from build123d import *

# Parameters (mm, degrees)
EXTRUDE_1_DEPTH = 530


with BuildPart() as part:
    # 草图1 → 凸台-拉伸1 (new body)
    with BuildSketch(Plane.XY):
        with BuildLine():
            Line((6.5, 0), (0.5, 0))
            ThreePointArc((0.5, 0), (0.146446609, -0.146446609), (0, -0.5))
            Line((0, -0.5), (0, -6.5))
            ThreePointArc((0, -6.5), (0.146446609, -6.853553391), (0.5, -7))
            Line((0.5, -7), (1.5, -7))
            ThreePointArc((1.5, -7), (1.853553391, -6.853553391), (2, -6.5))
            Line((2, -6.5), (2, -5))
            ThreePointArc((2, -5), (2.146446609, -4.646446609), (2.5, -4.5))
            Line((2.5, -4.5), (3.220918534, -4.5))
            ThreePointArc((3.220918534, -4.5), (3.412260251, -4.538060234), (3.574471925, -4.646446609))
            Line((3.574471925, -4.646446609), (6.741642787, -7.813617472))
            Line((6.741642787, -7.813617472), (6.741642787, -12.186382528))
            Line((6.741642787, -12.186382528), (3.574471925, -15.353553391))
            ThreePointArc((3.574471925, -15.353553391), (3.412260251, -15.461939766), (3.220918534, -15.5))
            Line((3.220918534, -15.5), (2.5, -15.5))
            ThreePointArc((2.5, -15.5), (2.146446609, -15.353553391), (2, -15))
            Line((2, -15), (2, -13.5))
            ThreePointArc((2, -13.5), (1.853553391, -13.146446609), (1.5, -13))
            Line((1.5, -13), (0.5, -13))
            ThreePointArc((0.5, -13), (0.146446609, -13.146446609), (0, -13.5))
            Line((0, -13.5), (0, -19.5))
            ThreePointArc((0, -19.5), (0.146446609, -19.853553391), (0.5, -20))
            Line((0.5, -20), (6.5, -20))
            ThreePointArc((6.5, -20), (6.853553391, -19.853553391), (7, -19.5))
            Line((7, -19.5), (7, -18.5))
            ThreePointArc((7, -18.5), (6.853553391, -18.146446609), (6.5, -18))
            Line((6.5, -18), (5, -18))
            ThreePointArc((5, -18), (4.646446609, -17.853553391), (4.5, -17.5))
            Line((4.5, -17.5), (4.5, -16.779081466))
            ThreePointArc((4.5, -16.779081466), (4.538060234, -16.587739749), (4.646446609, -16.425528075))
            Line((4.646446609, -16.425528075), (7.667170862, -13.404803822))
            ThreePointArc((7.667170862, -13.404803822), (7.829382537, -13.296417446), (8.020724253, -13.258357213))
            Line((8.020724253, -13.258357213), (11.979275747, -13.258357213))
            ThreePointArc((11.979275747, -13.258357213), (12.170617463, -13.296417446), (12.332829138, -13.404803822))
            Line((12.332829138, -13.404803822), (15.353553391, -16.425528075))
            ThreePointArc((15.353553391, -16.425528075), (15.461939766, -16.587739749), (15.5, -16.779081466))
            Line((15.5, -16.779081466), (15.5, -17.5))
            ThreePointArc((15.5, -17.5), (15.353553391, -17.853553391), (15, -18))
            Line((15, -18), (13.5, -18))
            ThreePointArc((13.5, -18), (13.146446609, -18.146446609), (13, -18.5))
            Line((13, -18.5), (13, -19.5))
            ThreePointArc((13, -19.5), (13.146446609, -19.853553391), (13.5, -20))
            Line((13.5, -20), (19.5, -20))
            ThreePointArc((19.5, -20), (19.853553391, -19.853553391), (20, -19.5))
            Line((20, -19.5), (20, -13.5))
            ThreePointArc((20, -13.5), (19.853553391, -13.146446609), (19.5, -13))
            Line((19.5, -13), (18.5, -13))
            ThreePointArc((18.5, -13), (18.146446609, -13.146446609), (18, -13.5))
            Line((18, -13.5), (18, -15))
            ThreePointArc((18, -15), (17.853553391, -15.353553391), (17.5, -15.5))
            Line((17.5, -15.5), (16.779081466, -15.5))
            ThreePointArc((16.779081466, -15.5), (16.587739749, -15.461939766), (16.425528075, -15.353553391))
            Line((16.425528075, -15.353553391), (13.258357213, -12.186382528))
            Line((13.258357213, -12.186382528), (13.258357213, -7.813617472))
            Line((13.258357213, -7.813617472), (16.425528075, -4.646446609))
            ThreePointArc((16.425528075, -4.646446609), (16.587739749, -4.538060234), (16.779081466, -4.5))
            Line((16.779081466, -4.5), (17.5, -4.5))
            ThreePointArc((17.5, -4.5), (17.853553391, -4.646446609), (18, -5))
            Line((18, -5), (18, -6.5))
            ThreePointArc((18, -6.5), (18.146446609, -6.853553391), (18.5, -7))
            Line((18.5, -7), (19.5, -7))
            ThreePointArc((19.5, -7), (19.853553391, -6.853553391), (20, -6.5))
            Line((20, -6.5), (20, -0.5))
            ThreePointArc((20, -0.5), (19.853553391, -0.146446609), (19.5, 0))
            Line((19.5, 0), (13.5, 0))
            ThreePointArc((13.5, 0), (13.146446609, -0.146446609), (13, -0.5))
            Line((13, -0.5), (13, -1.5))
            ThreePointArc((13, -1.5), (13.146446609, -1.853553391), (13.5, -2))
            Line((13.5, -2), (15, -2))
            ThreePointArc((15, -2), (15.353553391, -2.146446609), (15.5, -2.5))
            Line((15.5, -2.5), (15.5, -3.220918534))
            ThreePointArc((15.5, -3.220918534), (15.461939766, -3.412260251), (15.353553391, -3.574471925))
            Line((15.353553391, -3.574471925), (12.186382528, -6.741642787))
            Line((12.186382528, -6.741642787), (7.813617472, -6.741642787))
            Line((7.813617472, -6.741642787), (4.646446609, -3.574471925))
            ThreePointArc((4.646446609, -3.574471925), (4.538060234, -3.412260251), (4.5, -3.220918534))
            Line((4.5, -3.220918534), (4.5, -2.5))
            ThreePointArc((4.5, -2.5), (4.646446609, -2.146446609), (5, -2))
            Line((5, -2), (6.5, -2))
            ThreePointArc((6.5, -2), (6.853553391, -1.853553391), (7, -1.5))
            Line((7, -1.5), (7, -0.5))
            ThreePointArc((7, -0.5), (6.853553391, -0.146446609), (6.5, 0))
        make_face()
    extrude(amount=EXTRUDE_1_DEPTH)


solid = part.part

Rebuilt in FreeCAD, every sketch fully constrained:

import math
import FreeCAD as App
import Part
import Sketcher

doc = App.newDocument("Part")
params = doc.addObject("Spreadsheet::Sheet", "Params")
for row, (alias, value) in enumerate([
    ("sketch1_radius", "0.5 mm"),
    ("sketch1_width", "6 mm"),
    ("sketch1_width2", "1 mm"),
    ("sketch1_width3", "1.5 mm"),
    ("pad1_length", "530 mm"),
], start=1):
    params.set(f"A{row}", alias)
    params.set(f"B{row}", "=" + value)
    params.setAlias(f"B{row}", alias)

body = doc.addObject("PartDesign::Body", "Body")

sketch1 = doc.addObject("Sketcher::SketchObject", "Sketch")
body.addObject(sketch1)
sketch1.AttachmentSupport = (doc.XY_Plane, [""])
sketch1.MapMode = "FlatFace"
sketch1.addGeometry(Part.LineSegment(App.Vector(6.5, 0, 0), App.Vector(0.5, 0, 0)), False)
sketch1.addGeometry(Part.ArcOfCircle(Part.Circle(App.Vector(0.5, -0.5, 0), App.Vector(0, 0, 1), 0.5), math.radians(90), math.radians(180)), False)
sketch1.addGeometry(Part.LineSegment(App.Vector(0, -0.5, 0), App.Vector(0, -6.5, 0)), False)
sketch1.addGeometry(Part.ArcOfCircle(Part.Circle(App.Vector(0.5, -6.5, 0), App.Vector(0, 0, 1), 0.5), math.radians(180), math.radians(270)), False)
sketch1.addGeometry(Part.LineSegment(App.Vector(0.5, -7, 0), App.Vector(1.5, -7, 0)), False)
sketch1.addGeometry(Part.ArcOfCircle(Part.Circle(App.Vector(1.5, -6.5, 0), App.Vector(0, 0, 1), 0.5), math.radians(-90), math.radians(0)), False)
sketch1.addGeometry(Part.LineSegment(App.Vector(2, -6.5, 0), App.Vector(2, -5, 0)), False)
sketch1.addGeometry(Part.ArcOfCircle(Part.Circle(App.Vector(2.5, -5, 0), App.Vector(0, 0, 1), 0.5), math.radians(90), math.radians(180)), False)
sketch1.addGeometry(Part.LineSegment(App.Vector(2.5, -4.5, 0), App.Vector(3.22, -4.5, 0)), False)
sketch1.addGeometry(Part.ArcOfCircle(Part.Circle(App.Vector(3.22, -5, 0), App.Vector(0, 0, 1), 0.5), math.radians(45), math.radians(90)), False)
sketch1.addGeometry(Part.LineSegment(App.Vector(3.57, -4.65, 0), App.Vector(6.74, -7.81, 0)), False)
sketch1.addGeometry(Part.LineSegment(App.Vector(6.74, -7.81, 0), App.Vector(6.74, -12.19, 0)), False)
sketch1.addGeometry(Part.LineSegment(App.Vector(6.74, -12.19, 0), App.Vector(3.57, -15.35, 0)), False)
sketch1.addGeometry(Part.ArcOfCircle(Part.Circle(App.Vector(3.22, -15, 0), App.Vector(0, 0, 1), 0.5), math.radians(-90), math.radians(-45)), False)
sketch1.addGeometry(Part.LineSegment(App.Vector(3.22, -15.5, 0), App.Vector(2.5, -15.5, 0)), False)
sketch1.addGeometry(Part.ArcOfCircle(Part.Circle(App.Vector(2.5, -15, 0), App.Vector(0, 0, 1), 0.5), math.radians(180), math.radians(270)), False)
sketch1.addGeometry(Part.LineSegment(App.Vector(2, -15, 0), App.Vector(2, -13.5, 0)), False)
sketch1.addGeometry(Part.ArcOfCircle(Part.Circle(App.Vector(1.5, -13.5, 0), App.Vector(0, 0, 1), 0.5), math.radians(0), math.radians(90)), False)
sketch1.addGeometry(Part.LineSegment(App.Vector(1.5, -13, 0), App.Vector(0.5, -13, 0)), False)
sketch1.addGeometry(Part.ArcOfCircle(Part.Circle(App.Vector(0.5, -13.5, 0), App.Vector(0, 0, 1), 0.5), math.radians(90), math.radians(180)), False)
sketch1.addGeometry(Part.LineSegment(App.Vector(0, -13.5, 0), App.Vector(0, -19.5, 0)), False)
sketch1.addGeometry(Part.ArcOfCircle(Part.Circle(App.Vector(0.5, -19.5, 0), App.Vector(0, 0, 1), 0.5), math.radians(180), math.radians(270)), False)
sketch1.addGeometry(Part.LineSegment(App.Vector(0.5, -20, 0), App.Vector(6.5, -20, 0)), False)
sketch1.addGeometry(Part.ArcOfCircle(Part.Circle(App.Vector(6.5, -19.5, 0), App.Vector(0, 0, 1), 0.5), math.radians(-90), math.radians(0)), False)
sketch1.addGeometry(Part.LineSegment(App.Vector(7, -19.5, 0), App.Vector(7, -18.5, 0)), False)
sketch1.addGeometry(Part.ArcOfCircle(Part.Circle(App.Vector(6.5, -18.5, 0), App.Vector(0, 0, 1), 0.5), math.radians(0), math.radians(90)), False)
sketch1.addGeometry(Part.LineSegment(App.Vector(6.5, -18, 0), App.Vector(5, -18, 0)), False)
sketch1.addGeometry(Part.ArcOfCircle(Part.Circle(App.Vector(5, -17.5, 0), App.Vector(0, 0, 1), 0.5), math.radians(180), math.radians(270)), False)
sketch1.addGeometry(Part.LineSegment(App.Vector(4.5, -17.5, 0), App.Vector(4.5, -16.78, 0)), False)
sketch1.addGeometry(Part.ArcOfCircle(Part.Circle(App.Vector(5, -16.78, 0), App.Vector(0, 0, 1), 0.5), math.radians(135), math.radians(180)), False)
sketch1.addGeometry(Part.LineSegment(App.Vector(4.65, -16.43, 0), App.Vector(7.67, -13.4, 0)), False)
sketch1.addGeometry(Part.ArcOfCircle(Part.Circle(App.Vector(8.02, -13.76, 0), App.Vector(0, 0, 1), 0.5), math.radians(90), math.radians(135)), False)
sketch1.addGeometry(Part.LineSegment(App.Vector(8.02, -13.26, 0), App.Vector(11.98, -13.26, 0)), False)
sketch1.addGeometry(Part.ArcOfCircle(Part.Circle(App.Vector(11.98, -13.76, 0), App.Vector(0, 0, 1), 0.5), math.radians(45), math.radians(90)), False)
sketch1.addGeometry(Part.LineSegment(App.Vector(12.33, -13.4, 0), App.Vector(15.35, -16.43, 0)), False)
sketch1.addGeometry(Part.ArcOfCircle(Part.Circle(App.Vector(15, -16.78, 0), App.Vector(0, 0, 1), 0.5), math.radians(0), math.radians(45)), False)
sketch1.addGeometry(Part.LineSegment(App.Vector(15.5, -16.78, 0), App.Vector(15.5, -17.5, 0)), False)
sketch1.addGeometry(Part.ArcOfCircle(Part.Circle(App.Vector(15, -17.5, 0), App.Vector(0, 0, 1), 0.5), math.radians(-90), math.radians(0)), False)
sketch1.addGeometry(Part.LineSegment(App.Vector(15, -18, 0), App.Vector(13.5, -18, 0)), False)
sketch1.addGeometry(Part.ArcOfCircle(Part.Circle(App.Vector(13.5, -18.5, 0), App.Vector(0, 0, 1), 0.5), math.radians(90), math.radians(180)), False)
sketch1.addGeometry(Part.LineSegment(App.Vector(13, -18.5, 0), App.Vector(13, -19.5, 0)), False)
sketch1.addGeometry(Part.ArcOfCircle(Part.Circle(App.Vector(13.5, -19.5, 0), App.Vector(0, 0, 1), 0.5), math.radians(180), math.radians(270)), False)
sketch1.addGeometry(Part.LineSegment(App.Vector(13.5, -20, 0), App.Vector(19.5, -20, 0)), False)
sketch1.addGeometry(Part.ArcOfCircle(Part.Circle(App.Vector(19.5, -19.5, 0), App.Vector(0, 0, 1), 0.5), math.radians(-90), math.radians(0)), False)
sketch1.addGeometry(Part.LineSegment(App.Vector(20, -19.5, 0), App.Vector(20, -13.5, 0)), False)
sketch1.addGeometry(Part.ArcOfCircle(Part.Circle(App.Vector(19.5, -13.5, 0), App.Vector(0, 0, 1), 0.5), math.radians(0), math.radians(90)), False)
sketch1.addGeometry(Part.LineSegment(App.Vector(19.5, -13, 0), App.Vector(18.5, -13, 0)), False)
sketch1.addGeometry(Part.ArcOfCircle(Part.Circle(App.Vector(18.5, -13.5, 0), App.Vector(0, 0, 1), 0.5), math.radians(90), math.radians(180)), False)
sketch1.addGeometry(Part.LineSegment(App.Vector(18, -13.5, 0), App.Vector(18, -15, 0)), False)
sketch1.addGeometry(Part.ArcOfCircle(Part.Circle(App.Vector(17.5, -15, 0), App.Vector(0, 0, 1), 0.5), math.radians(-90), math.radians(0)), False)
sketch1.addGeometry(Part.LineSegment(App.Vector(17.5, -15.5, 0), App.Vector(16.78, -15.5, 0)), False)
sketch1.addGeometry(Part.ArcOfCircle(Part.Circle(App.Vector(16.78, -15, 0), App.Vector(0, 0, 1), 0.5), math.radians(-135), math.radians(-90)), False)
sketch1.addGeometry(Part.LineSegment(App.Vector(16.43, -15.35, 0), App.Vector(13.26, -12.19, 0)), False)
sketch1.addGeometry(Part.LineSegment(App.Vector(13.26, -12.19, 0), App.Vector(13.26, -7.81, 0)), False)
sketch1.addGeometry(Part.LineSegment(App.Vector(13.26, -7.81, 0), App.Vector(16.43, -4.65, 0)), False)
sketch1.addGeometry(Part.ArcOfCircle(Part.Circle(App.Vector(16.78, -5, 0), App.Vector(0, 0, 1), 0.5), math.radians(90), math.radians(135)), False)
sketch1.addGeometry(Part.LineSegment(App.Vector(16.78, -4.5, 0), App.Vector(17.5, -4.5, 0)), False)
sketch1.addGeometry(Part.ArcOfCircle(Part.Circle(App.Vector(17.5, -5, 0), App.Vector(0, 0, 1), 0.5), math.radians(0), math.radians(90)), False)
sketch1.addGeometry(Part.LineSegment(App.Vector(18, -5, 0), App.Vector(18, -6.5, 0)), False)
sketch1.addGeometry(Part.ArcOfCircle(Part.Circle(App.Vector(18.5, -6.5, 0), App.Vector(0, 0, 1), 0.5), math.radians(180), math.radians(270)), False)
sketch1.addGeometry(Part.LineSegment(App.Vector(18.5, -7, 0), App.Vector(19.5, -7, 0)), False)
sketch1.addGeometry(Part.ArcOfCircle(Part.Circle(App.Vector(19.5, -6.5, 0), App.Vector(0, 0, 1), 0.5), math.radians(-90), math.radians(0)), False)
sketch1.addGeometry(Part.LineSegment(App.Vector(20, -6.5, 0), App.Vector(20, -0.5, 0)), False)
sketch1.addGeometry(Part.ArcOfCircle(Part.Circle(App.Vector(19.5, -0.5, 0), App.Vector(0, 0, 1), 0.5), math.radians(0), math.radians(90)), False)
sketch1.addGeometry(Part.LineSegment(App.Vector(19.5, 0, 0), App.Vector(13.5, 0, 0)), False)
sketch1.addGeometry(Part.ArcOfCircle(Part.Circle(App.Vector(13.5, -0.5, 0), App.Vector(0, 0, 1), 0.5), math.radians(90), math.radians(180)), False)
sketch1.addGeometry(Part.LineSegment(App.Vector(13, -0.5, 0), App.Vector(13, -1.5, 0)), False)
sketch1.addGeometry(Part.ArcOfCircle(Part.Circle(App.Vector(13.5, -1.5, 0), App.Vector(0, 0, 1), 0.5), math.radians(180), math.radians(270)), False)
sketch1.addGeometry(Part.LineSegment(App.Vector(13.5, -2, 0), App.Vector(15, -2, 0)), False)
sketch1.addGeometry(Part.ArcOfCircle(Part.Circle(App.Vector(15, -2.5, 0), App.Vector(0, 0, 1), 0.5), math.radians(0), math.radians(90)), False)
sketch1.addGeometry(Part.LineSegment(App.Vector(15.5, -2.5, 0), App.Vector(15.5, -3.22, 0)), False)
sketch1.addGeometry(Part.ArcOfCircle(Part.Circle(App.Vector(15, -3.22, 0), App.Vector(0, 0, 1), 0.5), math.radians(-45), math.radians(0)), False)
sketch1.addGeometry(Part.LineSegment(App.Vector(15.35, -3.57, 0), App.Vector(12.19, -6.74, 0)), False)
sketch1.addGeometry(Part.LineSegment(App.Vector(12.19, -6.74, 0), App.Vector(7.81, -6.74, 0)), False)
sketch1.addGeometry(Part.LineSegment(App.Vector(7.81, -6.74, 0), App.Vector(4.65, -3.57, 0)), False)
sketch1.addGeometry(Part.ArcOfCircle(Part.Circle(App.Vector(5, -3.22, 0), App.Vector(0, 0, 1), 0.5), math.radians(180), math.radians(225)), False)
sketch1.addGeometry(Part.LineSegment(App.Vector(4.5, -3.22, 0), App.Vector(4.5, -2.5, 0)), False)
sketch1.addGeometry(Part.ArcOfCircle(Part.Circle(App.Vector(5, -2.5, 0), App.Vector(0, 0, 1), 0.5), math.radians(90), math.radians(180)), False)
sketch1.addGeometry(Part.LineSegment(App.Vector(5, -2, 0), App.Vector(6.5, -2, 0)), False)
sketch1.addGeometry(Part.ArcOfCircle(Part.Circle(App.Vector(6.5, -1.5, 0), App.Vector(0, 0, 1), 0.5), math.radians(-90), math.radians(0)), False)
sketch1.addGeometry(Part.LineSegment(App.Vector(7, -1.5, 0), App.Vector(7, -0.5, 0)), False)
sketch1.addGeometry(Part.ArcOfCircle(Part.Circle(App.Vector(6.5, -0.5, 0), App.Vector(0, 0, 1), 0.5), math.radians(0), math.radians(90)), False)
sketch1.addConstraint(Sketcher.Constraint("Tangent", 0, 2, 1, 1))
sketch1.addConstraint(Sketcher.Constraint("Tangent", 1, 2, 2, 1))
sketch1.addConstraint(Sketcher.Constraint("Tangent", 2, 2, 3, 1))
sketch1.addConstraint(Sketcher.Constraint("Tangent", 3, 2, 4, 1))
sketch1.addConstraint(Sketcher.Constraint("Tangent", 4, 2, 5, 1))
sketch1.addConstraint(Sketcher.Constraint("Tangent", 5, 2, 6, 1))
sketch1.addConstraint(Sketcher.Constraint("Tangent", 6, 2, 7, 2))
sketch1.addConstraint(Sketcher.Constraint("Tangent", 7, 1, 8, 1))
sketch1.addConstraint(Sketcher.Constraint("Tangent", 8, 2, 9, 2))
sketch1.addConstraint(Sketcher.Constraint("Tangent", 9, 1, 10, 1))
sketch1.addConstraint(Sketcher.Constraint("Coincident", 10, 2, 11, 1))
sketch1.addConstraint(Sketcher.Constraint("Coincident", 11, 2, 12, 1))
sketch1.addConstraint(Sketcher.Constraint("Tangent", 12, 2, 13, 2))
sketch1.addConstraint(Sketcher.Constraint("Tangent", 13, 1, 14, 1))
sketch1.addConstraint(Sketcher.Constraint("Tangent", 14, 2, 15, 2))
sketch1.addConstraint(Sketcher.Constraint("Tangent", 15, 1, 16, 1))
sketch1.addConstraint(Sketcher.Constraint("Tangent", 16, 2, 17, 1))
sketch1.addConstraint(Sketcher.Constraint("Tangent", 17, 2, 18, 1))
sketch1.addConstraint(Sketcher.Constraint("Tangent", 18, 2, 19, 1))
sketch1.addConstraint(Sketcher.Constraint("Tangent", 19, 2, 20, 1))
sketch1.addConstraint(Sketcher.Constraint("Tangent", 20, 2, 21, 1))
sketch1.addConstraint(Sketcher.Constraint("Tangent", 21, 2, 22, 1))
sketch1.addConstraint(Sketcher.Constraint("Tangent", 22, 2, 23, 1))
sketch1.addConstraint(Sketcher.Constraint("Tangent", 23, 2, 24, 1))
sketch1.addConstraint(Sketcher.Constraint("Tangent", 24, 2, 25, 1))
sketch1.addConstraint(Sketcher.Constraint("Tangent", 25, 2, 26, 1))
sketch1.addConstraint(Sketcher.Constraint("Tangent", 26, 2, 27, 2))
sketch1.addConstraint(Sketcher.Constraint("Tangent", 27, 1, 28, 1))
sketch1.addConstraint(Sketcher.Constraint("Tangent", 28, 2, 29, 2))
sketch1.addConstraint(Sketcher.Constraint("Tangent", 29, 1, 30, 1))
sketch1.addConstraint(Sketcher.Constraint("Tangent", 30, 2, 31, 2))
sketch1.addConstraint(Sketcher.Constraint("Tangent", 31, 1, 32, 1))
sketch1.addConstraint(Sketcher.Constraint("Tangent", 32, 2, 33, 2))
sketch1.addConstraint(Sketcher.Constraint("Tangent", 33, 1, 34, 1))
sketch1.addConstraint(Sketcher.Constraint("Tangent", 34, 2, 35, 2))
sketch1.addConstraint(Sketcher.Constraint("Tangent", 35, 1, 36, 1))
sketch1.addConstraint(Sketcher.Constraint("Tangent", 36, 2, 37, 2))
sketch1.addConstraint(Sketcher.Constraint("Tangent", 37, 1, 38, 1))
sketch1.addConstraint(Sketcher.Constraint("Tangent", 38, 2, 39, 1))
sketch1.addConstraint(Sketcher.Constraint("Tangent", 39, 2, 40, 1))
sketch1.addConstraint(Sketcher.Constraint("Tangent", 40, 2, 41, 1))
sketch1.addConstraint(Sketcher.Constraint("Tangent", 41, 2, 42, 1))
sketch1.addConstraint(Sketcher.Constraint("Tangent", 42, 2, 43, 1))
sketch1.addConstraint(Sketcher.Constraint("Tangent", 43, 2, 44, 1))
sketch1.addConstraint(Sketcher.Constraint("Tangent", 44, 2, 45, 1))
sketch1.addConstraint(Sketcher.Constraint("Tangent", 45, 2, 46, 1))
sketch1.addConstraint(Sketcher.Constraint("Tangent", 46, 2, 47, 1))
sketch1.addConstraint(Sketcher.Constraint("Tangent", 47, 2, 48, 1))
sketch1.addConstraint(Sketcher.Constraint("Tangent", 48, 2, 49, 2))
sketch1.addConstraint(Sketcher.Constraint("Tangent", 49, 1, 50, 1))
sketch1.addConstraint(Sketcher.Constraint("Tangent", 50, 2, 51, 2))
sketch1.addConstraint(Sketcher.Constraint("Tangent", 51, 1, 52, 1))
sketch1.addConstraint(Sketcher.Constraint("Coincident", 52, 2, 53, 1))
sketch1.addConstraint(Sketcher.Constraint("Coincident", 53, 2, 54, 1))
sketch1.addConstraint(Sketcher.Constraint("Tangent", 54, 2, 55, 2))
sketch1.addConstraint(Sketcher.Constraint("Tangent", 55, 1, 56, 1))
sketch1.addConstraint(Sketcher.Constraint("Tangent", 56, 2, 57, 2))
sketch1.addConstraint(Sketcher.Constraint("Tangent", 57, 1, 58, 1))
sketch1.addConstraint(Sketcher.Constraint("Tangent", 58, 2, 59, 1))
sketch1.addConstraint(Sketcher.Constraint("Tangent", 59, 2, 60, 1))
sketch1.addConstraint(Sketcher.Constraint("Tangent", 60, 2, 61, 1))
sketch1.addConstraint(Sketcher.Constraint("Tangent", 61, 2, 62, 1))
sketch1.addConstraint(Sketcher.Constraint("Tangent", 62, 2, 63, 1))
sketch1.addConstraint(Sketcher.Constraint("Tangent", 63, 2, 64, 1))
sketch1.addConstraint(Sketcher.Constraint("Tangent", 64, 2, 65, 1))
sketch1.addConstraint(Sketcher.Constraint("Tangent", 65, 2, 66, 1))
sketch1.addConstraint(Sketcher.Constraint("Tangent", 66, 2, 67, 1))
sketch1.addConstraint(Sketcher.Constraint("Tangent", 67, 2, 68, 1))
sketch1.addConstraint(Sketcher.Constraint("Tangent", 68, 2, 69, 2))
sketch1.addConstraint(Sketcher.Constraint("Tangent", 69, 1, 70, 1))
sketch1.addConstraint(Sketcher.Constraint("Tangent", 70, 2, 71, 2))
sketch1.addConstraint(Sketcher.Constraint("Tangent", 71, 1, 72, 1))
sketch1.addConstraint(Sketcher.Constraint("Coincident", 72, 2, 73, 1))
sketch1.addConstraint(Sketcher.Constraint("Coincident", 73, 2, 74, 1))
sketch1.addConstraint(Sketcher.Constraint("Tangent", 74, 2, 75, 2))
sketch1.addConstraint(Sketcher.Constraint("Tangent", 75, 1, 76, 1))
sketch1.addConstraint(Sketcher.Constraint("Tangent", 76, 2, 77, 2))
sketch1.addConstraint(Sketcher.Constraint("Tangent", 77, 1, 78, 1))
sketch1.addConstraint(Sketcher.Constraint("Tangent", 78, 2, 79, 1))
sketch1.addConstraint(Sketcher.Constraint("Tangent", 79, 2, 80, 1))
sketch1.addConstraint(Sketcher.Constraint("Tangent", 80, 2, 81, 1))
sketch1.addConstraint(Sketcher.Constraint("Tangent", 81, 2, 0, 1))
sketch1.addConstraint(Sketcher.Constraint("Horizontal", 0))
sketch1.addConstraint(Sketcher.Constraint("Vertical", 2))
sketch1.addConstraint(Sketcher.Constraint("Horizontal", 4))
sketch1.addConstraint(Sketcher.Constraint("Vertical", 6))
sketch1.addConstraint(Sketcher.Constraint("Horizontal", 8))
sketch1.addConstraint(Sketcher.Constraint("Vertical", 11))
sketch1.addConstraint(Sketcher.Constraint("Horizontal", 14))
sketch1.addConstraint(Sketcher.Constraint("Vertical", 16))
sketch1.addConstraint(Sketcher.Constraint("Horizontal", 18))
sketch1.addConstraint(Sketcher.Constraint("Vertical", 20))
sketch1.addConstraint(Sketcher.Constraint("Horizontal", 22))
sketch1.addConstraint(Sketcher.Constraint("Vertical", 24))
sketch1.addConstraint(Sketcher.Constraint("Horizontal", 26))
sketch1.addConstraint(Sketcher.Constraint("Vertical", 28))
sketch1.addConstraint(Sketcher.Constraint("Horizontal", 32))
sketch1.addConstraint(Sketcher.Constraint("Vertical", 36))
sketch1.addConstraint(Sketcher.Constraint("Horizontal", 38))
sketch1.addConstraint(Sketcher.Constraint("Vertical", 40))
sketch1.addConstraint(Sketcher.Constraint("Horizontal", 42))
sketch1.addConstraint(Sketcher.Constraint("Vertical", 44))
sketch1.addConstraint(Sketcher.Constraint("Horizontal", 46))
sketch1.addConstraint(Sketcher.Constraint("Vertical", 48))
sketch1.addConstraint(Sketcher.Constraint("Horizontal", 50))
sketch1.addConstraint(Sketcher.Constraint("Vertical", 53))
sketch1.addConstraint(Sketcher.Constraint("Horizontal", 56))
sketch1.addConstraint(Sketcher.Constraint("Vertical", 58))
sketch1.addConstraint(Sketcher.Constraint("Horizontal", 60))
sketch1.addConstraint(Sketcher.Constraint("Vertical", 62))
sketch1.addConstraint(Sketcher.Constraint("Horizontal", 64))
sketch1.addConstraint(Sketcher.Constraint("Vertical", 66))
sketch1.addConstraint(Sketcher.Constraint("Horizontal", 68))
sketch1.addConstraint(Sketcher.Constraint("Vertical", 70))
sketch1.addConstraint(Sketcher.Constraint("Horizontal", 73))
sketch1.addConstraint(Sketcher.Constraint("Vertical", 76))
sketch1.addConstraint(Sketcher.Constraint("Horizontal", 78))
sketch1.addConstraint(Sketcher.Constraint("Vertical", 80))
sketch1.addConstraint(Sketcher.Constraint("Equal", 1, 3))
sketch1.addConstraint(Sketcher.Constraint("Equal", 3, 5))
sketch1.addConstraint(Sketcher.Constraint("Equal", 5, 7))
sketch1.addConstraint(Sketcher.Constraint("Equal", 7, 9))
sketch1.addConstraint(Sketcher.Constraint("Equal", 9, 13))
sketch1.addConstraint(Sketcher.Constraint("Equal", 13, 15))
sketch1.addConstraint(Sketcher.Constraint("Equal", 15, 17))
sketch1.addConstraint(Sketcher.Constraint("Equal", 17, 19))
sketch1.addConstraint(Sketcher.Constraint("Equal", 19, 21))
sketch1.addConstraint(Sketcher.Constraint("Equal", 21, 23))
sketch1.addConstraint(Sketcher.Constraint("Equal", 23, 25))
sketch1.addConstraint(Sketcher.Constraint("Equal", 25, 27))
sketch1.addConstraint(Sketcher.Constraint("Equal", 27, 29))
sketch1.addConstraint(Sketcher.Constraint("Equal", 29, 31))
sketch1.addConstraint(Sketcher.Constraint("Equal", 31, 33))
sketch1.addConstraint(Sketcher.Constraint("Equal", 33, 35))
sketch1.addConstraint(Sketcher.Constraint("Equal", 35, 37))
sketch1.addConstraint(Sketcher.Constraint("Equal", 37, 39))
sketch1.addConstraint(Sketcher.Constraint("Equal", 39, 41))
sketch1.addConstraint(Sketcher.Constraint("Equal", 41, 43))
sketch1.addConstraint(Sketcher.Constraint("Equal", 43, 45))
sketch1.addConstraint(Sketcher.Constraint("Equal", 45, 47))
sketch1.addConstraint(Sketcher.Constraint("Equal", 47, 49))
sketch1.addConstraint(Sketcher.Constraint("Equal", 49, 51))
sketch1.addConstraint(Sketcher.Constraint("Equal", 51, 55))
sketch1.addConstraint(Sketcher.Constraint("Equal", 55, 57))
sketch1.addConstraint(Sketcher.Constraint("Equal", 57, 59))
sketch1.addConstraint(Sketcher.Constraint("Equal", 59, 61))
sketch1.addConstraint(Sketcher.Constraint("Equal", 61, 63))
sketch1.addConstraint(Sketcher.Constraint("Equal", 63, 65))
sketch1.addConstraint(Sketcher.Constraint("Equal", 65, 67))
sketch1.addConstraint(Sketcher.Constraint("Equal", 67, 69))
sketch1.addConstraint(Sketcher.Constraint("Equal", 69, 71))
sketch1.addConstraint(Sketcher.Constraint("Equal", 71, 75))
sketch1.addConstraint(Sketcher.Constraint("Equal", 75, 77))
sketch1.addConstraint(Sketcher.Constraint("Equal", 77, 79))
sketch1.addConstraint(Sketcher.Constraint("Equal", 79, 81))
sketch1.addConstraint(Sketcher.Constraint("PointOnObject", 0, 2, -1))
sketch1.addConstraint(Sketcher.Constraint("PointOnObject", 1, 2, -2))
sketch1.addConstraint(Sketcher.Constraint("PointOnObject", 19, 2, -2))
sketch1.addConstraint(Sketcher.Constraint("PointOnObject", 63, 2, -1))
sketch1.addConstraint(Sketcher.Constraint("Perpendicular", 10, 12))
sketch1.addConstraint(Sketcher.Constraint("Parallel", 12, 30))
sketch1.addConstraint(Sketcher.Constraint("Perpendicular", 30, 34))
sketch1.addConstraint(Sketcher.Constraint("Parallel", 34, 52))
sketch1.addConstraint(Sketcher.Constraint("Perpendicular", 52, 54))
sketch1.addConstraint(Sketcher.Constraint("Parallel", 54, 72))
sketch1.addConstraint(Sketcher.Constraint("Perpendicular", 72, 74))
sketch1.addConstraint(Sketcher.Constraint("Horizontal", 29, 3, 35, 3))
sketch1.addConstraint(Sketcher.Constraint("Horizontal", 27, 3, 37, 3))
sketch1.addConstraint(Sketcher.Constraint("Horizontal", 23, 3, 41, 3))
sketch1.addConstraint(Sketcher.Constraint("Horizontal", 19, 3, 45, 3))
sketch1.addConstraint(Sketcher.Constraint("Horizontal", 15, 3, 49, 3))
sketch1.addConstraint(Sketcher.Constraint("Horizontal", 9, 3, 55, 3))
sketch1.addConstraint(Sketcher.Constraint("Horizontal", 5, 3, 59, 3))
sketch1.addConstraint(Sketcher.Constraint("Horizontal", 71, 3, 75, 3))
sketch1.addConstraint(Sketcher.Constraint("Horizontal", 69, 3, 77, 3))
sketch1.addConstraint(Sketcher.Constraint("Horizontal", 30, 2, 33, 1))
sketch1.addConstraint(Sketcher.Constraint("Horizontal", 11, 2, 52, 2))
sketch1.addConstraint(Sketcher.Constraint("Horizontal", 10, 2, 53, 2))
sketch1.addConstraint(Sketcher.Constraint("Vertical", 9, 3, 13, 3))
sketch1.addConstraint(Sketcher.Constraint("Vertical", 7, 3, 15, 3))
sketch1.addConstraint(Sketcher.Constraint("Vertical", 49, 3, 57, 3))
sketch1.addConstraint(Sketcher.Constraint("Vertical", 45, 3, 61, 3))
sketch1.addConstraint(Sketcher.Constraint("Vertical", 41, 3, 65, 3))
sketch1.addConstraint(Sketcher.Constraint("Vertical", 37, 3, 69, 3))
sketch1.addConstraint(Sketcher.Constraint("Vertical", 29, 3, 75, 3))
sketch1.addConstraint(Sketcher.Constraint("Vertical", 25, 3, 79, 3))
sketch1.addConstraint(Sketcher.Constraint("Equal", 26, 38))
sketch1.addConstraint(Sketcher.Constraint("Equal", 22, 42))
sketch1.addConstraint(Sketcher.Constraint("Equal", 18, 46))
sketch1.addConstraint(Sketcher.Constraint("Equal", 14, 50))
sketch1.addConstraint(Sketcher.Constraint("Equal", 64, 2))
sketch1.addConstraint(Sketcher.Constraint("Equal", 78, 6))
sketch1.addConstraint(Sketcher.Constraint("Equal", 73, 11))
sketch1.addConstraint(Sketcher.Constraint("Equal", 6, 16))
sketch1.addConstraint(Sketcher.Constraint("Equal", 2, 20))
sketch1.addConstraint(Sketcher.Constraint("Equal", 60, 24))
sketch1.addConstraint(Sketcher.Constraint("Equal", 56, 28))
sketch1.addConstraint(Sketcher.Constraint("Equal", 40, 66))
sketch1.addConstraint(Sketcher.Constraint("Equal", 36, 70))
sketch1.addConstraint(Sketcher.Constraint("Equal", 54, 72))
sketch1.addConstraint(Sketcher.Constraint("Radius", 1, 0.5))
sketch1.addConstraint(Sketcher.Constraint("DistanceX", 0, 2, 0, 1, 6.0))
sketch1.addConstraint(Sketcher.Constraint("DistanceX", 4, 1, 4, 2, 1.0))
sketch1.addConstraint(Sketcher.Constraint("DistanceX", 26, 2, 26, 1, 1.5))
sketch1.addConstraint(Sketcher.Constraint("DistanceY", 13, 3, -1, 1, 15.0))
sketch1.addConstraint(Sketcher.Constraint("DistanceX", 8, 1, 8, 2, 0.720919))
sketch1.addConstraint(Sketcher.Constraint("DistanceX", 32, 1, 32, 2, 3.958551))
sketch1.addConstraint(Sketcher.Constraint("DistanceX", 73, 2, 73, 1, 4.372765))
sketch1.setExpression("Constraints[200]", "Params.sketch1_radius")
sketch1.setExpression("Constraints[201]", "Params.sketch1_width")
sketch1.setExpression("Constraints[202]", "Params.sketch1_width2")
sketch1.setExpression("Constraints[203]", "Params.sketch1_width3")
pad1 = doc.addObject("PartDesign::Pad", "Pad")
body.addObject(pad1)
pad1.Profile = sketch1
pad1.setExpression("Length", "Params.pad1_length")

doc.recompute()
